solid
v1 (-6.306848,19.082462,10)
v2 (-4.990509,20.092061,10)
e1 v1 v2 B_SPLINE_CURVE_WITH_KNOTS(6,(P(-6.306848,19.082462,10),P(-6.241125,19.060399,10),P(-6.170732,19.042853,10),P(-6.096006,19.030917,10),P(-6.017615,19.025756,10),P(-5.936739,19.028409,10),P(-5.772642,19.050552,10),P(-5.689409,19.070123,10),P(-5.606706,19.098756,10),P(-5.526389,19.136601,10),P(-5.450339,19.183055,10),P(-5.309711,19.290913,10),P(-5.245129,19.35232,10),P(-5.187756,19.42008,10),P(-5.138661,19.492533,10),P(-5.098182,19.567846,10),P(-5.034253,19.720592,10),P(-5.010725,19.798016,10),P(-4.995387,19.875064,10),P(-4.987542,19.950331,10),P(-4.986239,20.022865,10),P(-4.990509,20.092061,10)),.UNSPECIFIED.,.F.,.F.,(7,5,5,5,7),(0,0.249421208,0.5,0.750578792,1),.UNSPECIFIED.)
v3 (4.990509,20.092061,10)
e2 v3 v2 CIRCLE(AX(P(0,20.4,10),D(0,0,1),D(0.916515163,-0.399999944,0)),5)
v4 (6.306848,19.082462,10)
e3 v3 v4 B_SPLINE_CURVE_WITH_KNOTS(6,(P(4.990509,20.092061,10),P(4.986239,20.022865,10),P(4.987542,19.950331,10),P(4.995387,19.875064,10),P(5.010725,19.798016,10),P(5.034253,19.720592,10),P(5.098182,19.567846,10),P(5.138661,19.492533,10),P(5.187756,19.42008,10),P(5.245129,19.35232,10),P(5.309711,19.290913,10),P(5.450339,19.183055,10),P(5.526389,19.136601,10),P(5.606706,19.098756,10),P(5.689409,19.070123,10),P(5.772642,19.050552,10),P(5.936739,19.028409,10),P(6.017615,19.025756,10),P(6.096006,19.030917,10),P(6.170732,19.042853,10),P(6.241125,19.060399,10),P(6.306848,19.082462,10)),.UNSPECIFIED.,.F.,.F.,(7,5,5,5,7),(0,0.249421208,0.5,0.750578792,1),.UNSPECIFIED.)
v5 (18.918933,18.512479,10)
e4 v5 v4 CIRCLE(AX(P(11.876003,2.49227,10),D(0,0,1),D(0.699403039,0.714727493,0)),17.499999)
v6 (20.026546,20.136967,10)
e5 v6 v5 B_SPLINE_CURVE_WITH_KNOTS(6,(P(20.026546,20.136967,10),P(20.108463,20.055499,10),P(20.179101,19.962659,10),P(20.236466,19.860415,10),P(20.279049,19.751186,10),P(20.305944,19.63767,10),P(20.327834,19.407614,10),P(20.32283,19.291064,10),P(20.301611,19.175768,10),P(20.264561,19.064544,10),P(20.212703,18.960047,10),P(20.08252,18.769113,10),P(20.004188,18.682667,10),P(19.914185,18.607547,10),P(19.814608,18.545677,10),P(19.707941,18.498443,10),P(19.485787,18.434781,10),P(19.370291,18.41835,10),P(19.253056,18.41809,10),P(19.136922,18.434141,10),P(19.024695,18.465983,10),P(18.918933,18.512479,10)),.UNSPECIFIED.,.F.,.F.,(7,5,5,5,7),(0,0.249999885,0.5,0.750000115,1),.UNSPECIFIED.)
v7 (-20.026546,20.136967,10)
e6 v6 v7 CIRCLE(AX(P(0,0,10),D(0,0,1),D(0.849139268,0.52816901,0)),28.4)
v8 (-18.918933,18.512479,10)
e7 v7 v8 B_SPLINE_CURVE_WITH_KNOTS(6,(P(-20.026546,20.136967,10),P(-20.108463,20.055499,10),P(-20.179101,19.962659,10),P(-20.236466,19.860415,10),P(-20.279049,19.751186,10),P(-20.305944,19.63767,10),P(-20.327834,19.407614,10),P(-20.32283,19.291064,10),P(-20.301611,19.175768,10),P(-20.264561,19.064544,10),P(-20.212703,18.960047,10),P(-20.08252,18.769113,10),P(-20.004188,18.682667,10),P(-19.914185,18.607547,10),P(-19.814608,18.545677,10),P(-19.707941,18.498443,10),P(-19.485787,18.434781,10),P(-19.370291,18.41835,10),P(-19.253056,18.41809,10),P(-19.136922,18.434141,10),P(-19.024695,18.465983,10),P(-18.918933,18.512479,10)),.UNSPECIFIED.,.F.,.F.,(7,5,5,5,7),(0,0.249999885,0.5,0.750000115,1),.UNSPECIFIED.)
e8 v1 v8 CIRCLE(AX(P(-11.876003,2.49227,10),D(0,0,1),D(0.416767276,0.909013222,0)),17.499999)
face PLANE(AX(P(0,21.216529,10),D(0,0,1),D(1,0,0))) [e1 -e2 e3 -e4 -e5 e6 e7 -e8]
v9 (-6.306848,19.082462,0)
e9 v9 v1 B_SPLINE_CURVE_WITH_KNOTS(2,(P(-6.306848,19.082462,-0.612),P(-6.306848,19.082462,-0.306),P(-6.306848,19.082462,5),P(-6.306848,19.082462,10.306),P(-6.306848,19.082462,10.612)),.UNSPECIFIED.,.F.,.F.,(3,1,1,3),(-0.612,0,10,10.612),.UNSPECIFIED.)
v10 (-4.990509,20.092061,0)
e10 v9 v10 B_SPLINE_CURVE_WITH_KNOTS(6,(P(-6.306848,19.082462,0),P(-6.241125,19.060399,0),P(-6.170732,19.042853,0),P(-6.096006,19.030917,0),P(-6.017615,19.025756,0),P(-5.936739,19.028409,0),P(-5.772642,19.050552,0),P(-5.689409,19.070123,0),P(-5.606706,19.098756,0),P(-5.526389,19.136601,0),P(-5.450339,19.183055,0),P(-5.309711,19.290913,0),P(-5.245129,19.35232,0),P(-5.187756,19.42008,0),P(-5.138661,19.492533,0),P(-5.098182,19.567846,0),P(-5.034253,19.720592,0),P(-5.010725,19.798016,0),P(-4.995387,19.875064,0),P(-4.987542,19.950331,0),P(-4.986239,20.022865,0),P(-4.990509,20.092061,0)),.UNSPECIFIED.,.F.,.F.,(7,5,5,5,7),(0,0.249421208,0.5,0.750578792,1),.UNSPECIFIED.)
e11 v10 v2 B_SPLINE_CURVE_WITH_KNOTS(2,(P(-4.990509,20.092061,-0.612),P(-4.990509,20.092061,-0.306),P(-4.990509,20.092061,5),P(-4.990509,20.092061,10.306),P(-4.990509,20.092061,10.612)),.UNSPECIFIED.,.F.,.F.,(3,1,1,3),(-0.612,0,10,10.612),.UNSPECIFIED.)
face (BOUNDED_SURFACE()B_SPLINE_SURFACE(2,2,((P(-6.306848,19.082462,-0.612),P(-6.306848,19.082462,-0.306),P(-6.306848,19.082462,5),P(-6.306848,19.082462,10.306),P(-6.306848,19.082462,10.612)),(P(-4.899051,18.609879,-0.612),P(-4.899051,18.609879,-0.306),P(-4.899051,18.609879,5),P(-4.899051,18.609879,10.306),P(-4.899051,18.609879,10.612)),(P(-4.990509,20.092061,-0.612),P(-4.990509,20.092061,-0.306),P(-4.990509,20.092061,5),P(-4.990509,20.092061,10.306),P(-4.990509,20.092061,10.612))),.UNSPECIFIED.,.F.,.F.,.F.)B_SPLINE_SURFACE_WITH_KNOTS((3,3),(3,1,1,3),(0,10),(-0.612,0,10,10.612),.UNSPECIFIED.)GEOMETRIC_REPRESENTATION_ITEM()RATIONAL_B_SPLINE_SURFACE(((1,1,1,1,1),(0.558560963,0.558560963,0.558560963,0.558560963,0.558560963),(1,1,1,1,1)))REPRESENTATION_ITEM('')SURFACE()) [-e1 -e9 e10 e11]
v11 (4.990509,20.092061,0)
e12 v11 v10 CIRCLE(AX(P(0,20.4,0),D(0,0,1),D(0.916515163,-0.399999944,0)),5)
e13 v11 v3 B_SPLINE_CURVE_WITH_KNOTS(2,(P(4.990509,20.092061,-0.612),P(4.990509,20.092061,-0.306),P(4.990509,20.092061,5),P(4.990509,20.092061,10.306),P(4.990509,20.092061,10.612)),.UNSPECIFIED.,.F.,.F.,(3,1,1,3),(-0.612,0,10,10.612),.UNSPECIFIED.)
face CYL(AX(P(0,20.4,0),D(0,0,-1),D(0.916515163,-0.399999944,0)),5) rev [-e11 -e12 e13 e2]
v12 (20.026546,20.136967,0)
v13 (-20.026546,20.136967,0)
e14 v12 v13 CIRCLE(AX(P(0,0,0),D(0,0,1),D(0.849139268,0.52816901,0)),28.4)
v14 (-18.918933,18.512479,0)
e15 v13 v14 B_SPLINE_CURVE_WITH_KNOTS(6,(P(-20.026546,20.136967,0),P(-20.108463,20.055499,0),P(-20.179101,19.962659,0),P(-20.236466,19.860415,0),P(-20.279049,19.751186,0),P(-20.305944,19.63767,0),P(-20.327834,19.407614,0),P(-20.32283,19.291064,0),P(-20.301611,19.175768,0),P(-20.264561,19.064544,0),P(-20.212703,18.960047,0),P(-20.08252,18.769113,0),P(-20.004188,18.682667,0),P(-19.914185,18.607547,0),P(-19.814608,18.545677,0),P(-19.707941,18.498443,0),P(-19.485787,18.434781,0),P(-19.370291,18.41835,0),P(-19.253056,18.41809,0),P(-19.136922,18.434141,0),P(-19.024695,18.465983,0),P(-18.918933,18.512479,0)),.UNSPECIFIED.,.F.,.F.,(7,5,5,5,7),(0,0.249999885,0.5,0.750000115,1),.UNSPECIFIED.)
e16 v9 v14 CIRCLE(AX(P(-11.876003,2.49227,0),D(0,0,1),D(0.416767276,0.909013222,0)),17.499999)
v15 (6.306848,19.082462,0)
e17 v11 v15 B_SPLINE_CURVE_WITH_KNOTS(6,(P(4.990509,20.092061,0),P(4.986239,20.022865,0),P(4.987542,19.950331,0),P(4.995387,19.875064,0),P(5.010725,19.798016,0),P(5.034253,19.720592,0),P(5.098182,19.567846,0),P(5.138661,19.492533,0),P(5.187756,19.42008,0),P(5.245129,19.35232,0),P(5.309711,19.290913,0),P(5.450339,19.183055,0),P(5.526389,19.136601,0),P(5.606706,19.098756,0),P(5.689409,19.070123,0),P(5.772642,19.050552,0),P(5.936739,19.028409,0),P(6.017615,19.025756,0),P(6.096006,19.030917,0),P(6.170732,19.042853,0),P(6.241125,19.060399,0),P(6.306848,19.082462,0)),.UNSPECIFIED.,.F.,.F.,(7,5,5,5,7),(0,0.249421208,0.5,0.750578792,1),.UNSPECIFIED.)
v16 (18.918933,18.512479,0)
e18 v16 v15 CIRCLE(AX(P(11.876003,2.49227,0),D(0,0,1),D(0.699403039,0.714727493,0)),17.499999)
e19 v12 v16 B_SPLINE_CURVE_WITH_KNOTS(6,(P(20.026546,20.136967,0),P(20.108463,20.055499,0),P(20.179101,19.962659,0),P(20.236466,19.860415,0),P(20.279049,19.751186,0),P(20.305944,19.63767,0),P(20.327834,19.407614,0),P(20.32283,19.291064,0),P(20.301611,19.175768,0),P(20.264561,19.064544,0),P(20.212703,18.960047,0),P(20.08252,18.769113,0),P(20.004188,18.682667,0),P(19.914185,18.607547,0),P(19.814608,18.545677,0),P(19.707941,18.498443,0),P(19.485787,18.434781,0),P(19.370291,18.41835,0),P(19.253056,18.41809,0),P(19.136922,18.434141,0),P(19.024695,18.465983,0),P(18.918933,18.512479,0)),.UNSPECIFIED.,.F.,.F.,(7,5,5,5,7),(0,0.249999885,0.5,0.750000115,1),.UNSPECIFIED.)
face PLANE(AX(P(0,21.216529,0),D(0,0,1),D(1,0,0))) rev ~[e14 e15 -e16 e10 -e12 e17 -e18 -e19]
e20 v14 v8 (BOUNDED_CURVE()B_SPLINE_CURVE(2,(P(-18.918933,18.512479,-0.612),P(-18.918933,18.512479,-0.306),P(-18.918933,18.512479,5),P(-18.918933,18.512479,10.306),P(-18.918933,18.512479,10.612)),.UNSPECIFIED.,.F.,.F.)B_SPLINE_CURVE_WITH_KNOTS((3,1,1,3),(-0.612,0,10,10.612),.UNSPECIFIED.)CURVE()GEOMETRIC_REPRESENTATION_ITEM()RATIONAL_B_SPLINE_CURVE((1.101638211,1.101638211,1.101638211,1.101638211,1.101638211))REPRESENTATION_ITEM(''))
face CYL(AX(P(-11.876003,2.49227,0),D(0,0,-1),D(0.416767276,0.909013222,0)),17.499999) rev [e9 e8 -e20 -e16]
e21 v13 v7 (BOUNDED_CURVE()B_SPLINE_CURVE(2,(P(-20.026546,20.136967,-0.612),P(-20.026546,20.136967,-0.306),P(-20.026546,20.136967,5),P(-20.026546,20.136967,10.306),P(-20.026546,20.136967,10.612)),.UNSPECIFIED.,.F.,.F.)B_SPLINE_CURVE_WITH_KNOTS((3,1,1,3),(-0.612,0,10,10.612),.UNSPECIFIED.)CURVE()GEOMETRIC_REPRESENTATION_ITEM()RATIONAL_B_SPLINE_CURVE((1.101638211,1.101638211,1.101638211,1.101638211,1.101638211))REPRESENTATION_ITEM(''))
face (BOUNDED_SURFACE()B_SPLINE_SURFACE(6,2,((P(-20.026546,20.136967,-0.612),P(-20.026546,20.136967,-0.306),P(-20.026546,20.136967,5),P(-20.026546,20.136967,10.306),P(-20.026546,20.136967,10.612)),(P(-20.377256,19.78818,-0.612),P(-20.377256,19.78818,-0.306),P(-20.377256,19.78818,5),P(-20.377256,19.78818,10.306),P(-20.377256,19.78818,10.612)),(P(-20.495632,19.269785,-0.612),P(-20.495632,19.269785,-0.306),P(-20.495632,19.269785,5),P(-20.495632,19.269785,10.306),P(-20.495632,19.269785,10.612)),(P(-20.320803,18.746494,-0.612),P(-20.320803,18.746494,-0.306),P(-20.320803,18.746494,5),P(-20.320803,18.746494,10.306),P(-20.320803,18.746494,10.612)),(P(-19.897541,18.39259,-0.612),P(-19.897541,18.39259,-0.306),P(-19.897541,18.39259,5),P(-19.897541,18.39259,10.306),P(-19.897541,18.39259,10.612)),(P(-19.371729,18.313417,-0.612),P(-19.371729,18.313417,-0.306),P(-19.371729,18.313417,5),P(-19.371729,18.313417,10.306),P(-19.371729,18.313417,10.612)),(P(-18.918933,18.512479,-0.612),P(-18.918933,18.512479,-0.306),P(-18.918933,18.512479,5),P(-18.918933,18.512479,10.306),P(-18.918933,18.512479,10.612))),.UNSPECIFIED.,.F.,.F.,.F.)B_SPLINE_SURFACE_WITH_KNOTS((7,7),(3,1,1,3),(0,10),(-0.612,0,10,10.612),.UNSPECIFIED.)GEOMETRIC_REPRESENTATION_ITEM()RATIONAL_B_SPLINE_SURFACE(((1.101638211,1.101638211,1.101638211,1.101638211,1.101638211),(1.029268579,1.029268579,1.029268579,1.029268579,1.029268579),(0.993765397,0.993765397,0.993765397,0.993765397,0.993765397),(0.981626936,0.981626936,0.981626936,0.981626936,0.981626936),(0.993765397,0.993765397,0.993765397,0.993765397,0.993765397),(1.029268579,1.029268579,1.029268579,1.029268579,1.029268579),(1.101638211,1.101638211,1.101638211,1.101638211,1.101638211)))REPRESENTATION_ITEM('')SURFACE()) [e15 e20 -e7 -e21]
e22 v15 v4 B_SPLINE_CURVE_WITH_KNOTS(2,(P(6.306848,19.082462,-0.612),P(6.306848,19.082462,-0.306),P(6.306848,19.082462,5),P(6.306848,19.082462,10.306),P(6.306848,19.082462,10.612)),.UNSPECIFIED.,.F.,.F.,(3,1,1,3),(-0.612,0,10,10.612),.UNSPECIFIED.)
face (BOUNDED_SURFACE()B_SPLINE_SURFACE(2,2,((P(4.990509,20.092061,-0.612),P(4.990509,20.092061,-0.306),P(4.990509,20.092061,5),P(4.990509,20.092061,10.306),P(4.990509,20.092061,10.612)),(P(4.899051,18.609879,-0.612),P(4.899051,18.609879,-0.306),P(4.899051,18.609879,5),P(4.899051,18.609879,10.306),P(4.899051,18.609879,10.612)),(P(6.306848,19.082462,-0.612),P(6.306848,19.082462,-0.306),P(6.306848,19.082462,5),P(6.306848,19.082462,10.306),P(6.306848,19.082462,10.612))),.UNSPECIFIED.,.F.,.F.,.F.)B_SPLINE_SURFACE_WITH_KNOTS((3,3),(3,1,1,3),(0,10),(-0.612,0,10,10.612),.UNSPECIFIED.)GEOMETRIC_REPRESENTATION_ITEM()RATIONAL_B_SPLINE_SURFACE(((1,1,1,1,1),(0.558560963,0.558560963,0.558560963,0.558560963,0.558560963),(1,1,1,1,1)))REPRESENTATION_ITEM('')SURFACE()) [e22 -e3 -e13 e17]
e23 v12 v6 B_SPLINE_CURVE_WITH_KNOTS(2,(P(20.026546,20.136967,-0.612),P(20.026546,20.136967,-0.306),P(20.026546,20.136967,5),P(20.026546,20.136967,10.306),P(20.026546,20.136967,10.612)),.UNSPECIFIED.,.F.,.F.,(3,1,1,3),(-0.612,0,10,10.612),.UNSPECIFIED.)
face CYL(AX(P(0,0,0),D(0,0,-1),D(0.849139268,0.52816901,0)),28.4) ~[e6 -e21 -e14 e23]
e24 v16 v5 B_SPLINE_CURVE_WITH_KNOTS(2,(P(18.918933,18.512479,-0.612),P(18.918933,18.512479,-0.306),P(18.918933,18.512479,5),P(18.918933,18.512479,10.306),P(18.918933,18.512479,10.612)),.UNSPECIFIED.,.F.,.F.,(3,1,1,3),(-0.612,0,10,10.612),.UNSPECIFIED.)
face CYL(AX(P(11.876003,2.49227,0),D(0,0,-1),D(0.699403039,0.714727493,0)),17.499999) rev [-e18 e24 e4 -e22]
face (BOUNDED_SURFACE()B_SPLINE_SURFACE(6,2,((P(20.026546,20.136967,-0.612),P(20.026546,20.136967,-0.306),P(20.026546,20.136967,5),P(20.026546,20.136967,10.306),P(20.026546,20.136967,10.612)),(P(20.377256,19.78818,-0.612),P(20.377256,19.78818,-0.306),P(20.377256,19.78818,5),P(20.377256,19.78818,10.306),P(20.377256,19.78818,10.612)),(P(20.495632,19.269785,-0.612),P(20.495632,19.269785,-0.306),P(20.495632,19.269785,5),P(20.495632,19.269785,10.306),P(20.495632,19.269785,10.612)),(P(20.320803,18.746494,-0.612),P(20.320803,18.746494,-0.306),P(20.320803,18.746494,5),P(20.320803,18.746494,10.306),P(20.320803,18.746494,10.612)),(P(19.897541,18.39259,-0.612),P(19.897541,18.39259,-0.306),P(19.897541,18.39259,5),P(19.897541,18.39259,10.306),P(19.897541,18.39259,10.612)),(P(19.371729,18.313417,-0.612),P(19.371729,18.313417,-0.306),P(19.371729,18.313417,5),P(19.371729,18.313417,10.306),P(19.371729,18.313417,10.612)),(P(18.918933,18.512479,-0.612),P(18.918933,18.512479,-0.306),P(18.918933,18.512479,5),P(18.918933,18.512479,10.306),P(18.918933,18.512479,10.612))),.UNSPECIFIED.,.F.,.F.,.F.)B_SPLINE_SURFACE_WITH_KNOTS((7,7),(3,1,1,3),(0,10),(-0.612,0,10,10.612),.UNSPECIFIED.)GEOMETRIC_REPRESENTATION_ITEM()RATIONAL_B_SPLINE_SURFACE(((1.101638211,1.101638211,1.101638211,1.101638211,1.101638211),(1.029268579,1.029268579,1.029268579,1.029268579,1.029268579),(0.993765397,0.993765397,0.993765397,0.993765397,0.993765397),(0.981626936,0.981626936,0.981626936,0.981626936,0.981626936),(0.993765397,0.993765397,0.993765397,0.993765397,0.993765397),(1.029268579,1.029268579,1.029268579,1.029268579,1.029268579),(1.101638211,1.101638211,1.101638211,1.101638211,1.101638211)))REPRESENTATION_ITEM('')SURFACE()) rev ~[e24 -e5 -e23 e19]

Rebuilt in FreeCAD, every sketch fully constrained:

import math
import FreeCAD as App
import Part
import Sketcher
Q = App.Units.Quantity


def edges_at(feature, points):
    """Names of the edges that pass closest to the given points."""
    edges = feature.Shape.Edges
    near = lambda p: min(range(len(edges)), key=lambda i: edges[i].distToShape(Part.Vertex(*p))[0])
    return sorted({f"Edge{near(p) + 1}" for p in points})

doc = App.newDocument("Part")
body = doc.addObject("PartDesign::Body", "Body")

sketch1 = body.newObject("Sketcher::SketchObject", "Sketch")
sketch1.AttachmentSupport = (doc.getObject("XY_Plane"), [""])
sketch1.MapMode = "FlatFace"
sketch1.addGeometry([
    Part.ArcOfCircle(Part.Circle(App.Vector(0, 0, 0), App.Vector(0, 0, 1), 28), math.radians(32), math.radians(148)),
    Part.ArcOfCircle(Part.Circle(App.Vector(-12, 2, 0), App.Vector(0, 0, 1), 17), math.radians(65), math.radians(134)),
    Part.ArcOfCircle(Part.Circle(App.Vector(0, 20, 0), App.Vector(0, 0, 1), 5), math.radians(-24), math.radians(204)),
    Part.ArcOfCircle(Part.Circle(App.Vector(12, 2, 0), App.Vector(0, 0, 1), 17), math.radians(46), math.radians(115)),
], False)
sketch1.addConstraint([
    Sketcher.Constraint("Coincident", 0, 2, 1, 2),
    Sketcher.Constraint("Coincident", 1, 1, 2, 2),
    Sketcher.Constraint("Coincident", 2, 1, 3, 2),
    Sketcher.Constraint("Coincident", 3, 1, 0, 1),
    Sketcher.Constraint("Coincident", 0, 3, -1, 1),
    Sketcher.Constraint("Equal", 1, 3),
    Sketcher.Constraint("Symmetric", 1, 3, 3, 3, -2),
    Sketcher.Constraint("PointOnObject", 2, 3, -2),
    Sketcher.Constraint("Radius", 2, Q("5 mm")),
    Sketcher.Constraint("Radius", 0, Q("28.4 mm")),
    Sketcher.Constraint("Radius", 1, Q("17.499999 mm")),
    Sketcher.Constraint("DistanceY", -1, 1, 0, 2, Q("15 mm")),
    Sketcher.Constraint("DistanceY", 1, 1, 2, 3, Q("2 mm")),
    Sketcher.Constraint("DistanceY", -1, 1, 2, 3, Q("20.4 mm")),
])
pad1 = body.newObject("PartDesign::Pad", "Pad")
pad1.Profile = sketch1
pad1.Length = 10
doc.recompute()

fillet = body.newObject("PartDesign::Fillet", "Fillet")
fillet.Base = (pad1, edges_at(pad1, [
    (-24.116, 15, 5),
    (-4.583, 18.4, 5),
    (4.583, 18.4, 5),
    (24.116, 15, 5),
]))
fillet.Radius = 1

doc.recompute()
